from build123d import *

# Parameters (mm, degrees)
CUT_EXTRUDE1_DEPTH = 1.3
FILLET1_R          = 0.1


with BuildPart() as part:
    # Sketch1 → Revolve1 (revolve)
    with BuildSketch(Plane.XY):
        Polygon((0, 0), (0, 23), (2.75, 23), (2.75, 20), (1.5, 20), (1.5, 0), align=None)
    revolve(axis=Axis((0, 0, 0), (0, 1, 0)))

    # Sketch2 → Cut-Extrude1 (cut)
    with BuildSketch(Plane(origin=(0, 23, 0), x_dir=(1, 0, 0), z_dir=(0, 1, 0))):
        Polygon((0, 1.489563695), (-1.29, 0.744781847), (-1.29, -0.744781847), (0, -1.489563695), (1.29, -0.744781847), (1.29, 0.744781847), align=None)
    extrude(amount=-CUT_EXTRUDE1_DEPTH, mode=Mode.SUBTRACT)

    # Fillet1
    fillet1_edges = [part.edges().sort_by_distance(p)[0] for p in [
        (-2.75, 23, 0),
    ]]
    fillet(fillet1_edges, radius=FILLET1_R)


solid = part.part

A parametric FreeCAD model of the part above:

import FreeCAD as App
import Part
import Sketcher
Q = App.Units.Quantity


def edges_at(feature, points):
    """Names of the edges that pass closest to the given points."""
    edges = feature.Shape.Edges
    near = lambda p: min(range(len(edges)), key=lambda i: edges[i].distToShape(Part.Vertex(*p))[0])
    return sorted({f"Edge{near(p) + 1}" for p in points})

doc = App.newDocument("Part")
params = doc.addObject("Spreadsheet::Sheet", "Params")
for row, (alias, value) in enumerate([
    ("sketch1_height", "23 mm"),
    ("sketch1_height2", "20 mm"),
    ("sketch1_width", "1.5 mm"),
    ("sketch1_width2", "1.25 mm"),
    ("revolution_angle", "360 deg"),
    ("pocket1_length", "1.3 mm"),
    ("fillet_radius", "0.1 mm"),
], start=1):
    params.set(f"A{row}", alias)
    params.set(f"B{row}", "=" + value)
    params.setAlias(f"B{row}", alias)

body = doc.addObject("PartDesign::Body", "Body")

# Sketch on XY plane
sketch1 = body.newObject("Sketcher::SketchObject", "Sketch")
sketch1.AttachmentSupport = (doc.getObject("XY_Plane"), [""])
sketch1.MapMode = "FlatFace"
sketch1.addGeometry(Part.LineSegment(App.Vector(0, 23, 0), App.Vector(0, 0, 0)), False)
sketch1.addGeometry(Part.LineSegment(App.Vector(0, 0, 0), App.Vector(1.5, 0, 0)), False)
sketch1.addGeometry(Part.LineSegment(App.Vector(1.5, 0, 0), App.Vector(1.5, 20, 0)), False)
sketch1.addGeometry(Part.LineSegment(App.Vector(1.5, 20, 0), App.Vector(2.8, 20, 0)), False)
sketch1.addGeometry(Part.LineSegment(App.Vector(2.8, 20, 0), App.Vector(2.8, 23, 0)), False)
sketch1.addGeometry(Part.LineSegment(App.Vector(2.8, 23, 0), App.Vector(0, 23, 0)), False)
sketch1.addConstraint(Sketcher.Constraint("Coincident", 0, 2, 1, 1))
sketch1.addConstraint(Sketcher.Constraint("Coincident", 1, 2, 2, 1))
sketch1.addConstraint(Sketcher.Constraint("Coincident", 2, 2, 3, 1))
sketch1.addConstraint(Sketcher.Constraint("Coincident", 3, 2, 4, 1))
sketch1.addConstraint(Sketcher.Constraint("Coincident", 4, 2, 5, 1))
sketch1.addConstraint(Sketcher.Constraint("Coincident", 5, 2, 0, 1))
sketch1.addConstraint(Sketcher.Constraint("Vertical", 0))
sketch1.addConstraint(Sketcher.Constraint("Horizontal", 1))
sketch1.addConstraint(Sketcher.Constraint("Vertical", 2))
sketch1.addConstraint(Sketcher.Constraint("Horizontal", 3))
sketch1.addConstraint(Sketcher.Constraint("Vertical", 4))
sketch1.addConstraint(Sketcher.Constraint("Horizontal", 5))
sketch1.addConstraint(Sketcher.Constraint("Coincident", 0, 2, -1, 1))
sketch1.addConstraint(Sketcher.Constraint("DistanceY", 0, 2, 0, 1, 23.0))
sketch1.addConstraint(Sketcher.Constraint("DistanceY", 2, 1, 2, 2, 20.0))
sketch1.addConstraint(Sketcher.Constraint("DistanceX", 1, 1, 1, 2, 1.5))
sketch1.addConstraint(Sketcher.Constraint("DistanceX", 3, 1, 3, 2, 1.25))
sketch1.setExpression("Constraints[13]", "Params.sketch1_height")
sketch1.setExpression("Constraints[14]", "Params.sketch1_height2")
sketch1.setExpression("Constraints[15]", "Params.sketch1_width")
sketch1.setExpression("Constraints[16]", "Params.sketch1_width2")
revolution = body.newObject("PartDesign::Revolution", "Revolution")
revolution.Profile = sketch1
revolution.ReferenceAxis = (sketch1, ["V_Axis"])
revolution.setExpression("Angle", "Params.revolution_angle")

# Sketch on XZ plane
sketch2 = body.newObject("Sketcher::SketchObject", "Sketch001")
sketch2.AttachmentSupport = (doc.getObject("XZ_Plane"), [""])
sketch2.MapMode = "FlatFace"
sketch2.AttachmentOffset = App.Placement(App.Vector(0, 0, -23), App.Rotation())
sketch2.addGeometry(Part.LineSegment(App.Vector(0, -1.5, 0), App.Vector(-1.3, -0.7, 0)), False)
sketch2.addGeometry(Part.LineSegment(App.Vector(-1.3, -0.7, 0), App.Vector(-1.3, 0.7, 0)), False)
sketch2.addGeometry(Part.LineSegment(App.Vector(-1.3, 0.7, 0), App.Vector(0, 1.5, 0)), False)
sketch2.addGeometry(Part.LineSegment(App.Vector(0, 1.5, 0), App.Vector(1.3, 0.7, 0)), False)
sketch2.addGeometry(Part.LineSegment(App.Vector(1.3, 0.7, 0), App.Vector(1.3, -0.7, 0)), False)
sketch2.addGeometry(Part.LineSegment(App.Vector(1.3, -0.7, 0), App.Vector(0, -1.5, 0)), False)
sketch2.addConstraint(Sketcher.Constraint("Coincident", 0, 2, 1, 1))
sketch2.addConstraint(Sketcher.Constraint("Coincident", 1, 2, 2, 1))
sketch2.addConstraint(Sketcher.Constraint("Coincident", 2, 2, 3, 1))
sketch2.addConstraint(Sketcher.Constraint("Coincident", 3, 2, 4, 1))
sketch2.addConstraint(Sketcher.Constraint("Coincident", 4, 2, 5, 1))
sketch2.addConstraint(Sketcher.Constraint("Coincident", 5, 2, 0, 1))
sketch2.addConstraint(Sketcher.Constraint("Vertical", 1))
sketch2.addConstraint(Sketcher.Constraint("Vertical", 4))
sketch2.addConstraint(Sketcher.Constraint("Symmetric", 0, 2, 3, 2, -1, 1))
sketch2.addConstraint(Sketcher.Constraint("Symmetric", 2, 2, 5, 2, -1, 1))
sketch2.addConstraint(Sketcher.Constraint("PointOnObject", 2, 2, -2))
sketch2.addConstraint(Sketcher.Constraint("Parallel", 2, 5))
sketch2.addConstraint(Sketcher.Constraint("Horizontal", 1, 2, 3, 2))
sketch2.addConstraint(Sketcher.Constraint("Angle", 0, Q("150 deg")))
sketch2.addConstraint(Sketcher.Constraint("DistanceX", 0, 2, -1, 1, 1.29))
sketch2.addConstraint(Sketcher.Constraint("DistanceY", 1, 1, 1, 2, 1.489564))
pocket1 = body.newObject("PartDesign::Pocket", "Pocket")
pocket1.Profile = sketch2
pocket1.setExpression("Length", "Params.pocket1_length")
pocket1.Reversed = True
doc.recompute()

fillet = body.newObject("PartDesign::Fillet", "Fillet")
fillet.Base = (pocket1, edges_at(pocket1, [(-2.75, 23, 0)]))
fillet.setExpression("Radius", "Params.fillet_radius")

doc.recompute()
